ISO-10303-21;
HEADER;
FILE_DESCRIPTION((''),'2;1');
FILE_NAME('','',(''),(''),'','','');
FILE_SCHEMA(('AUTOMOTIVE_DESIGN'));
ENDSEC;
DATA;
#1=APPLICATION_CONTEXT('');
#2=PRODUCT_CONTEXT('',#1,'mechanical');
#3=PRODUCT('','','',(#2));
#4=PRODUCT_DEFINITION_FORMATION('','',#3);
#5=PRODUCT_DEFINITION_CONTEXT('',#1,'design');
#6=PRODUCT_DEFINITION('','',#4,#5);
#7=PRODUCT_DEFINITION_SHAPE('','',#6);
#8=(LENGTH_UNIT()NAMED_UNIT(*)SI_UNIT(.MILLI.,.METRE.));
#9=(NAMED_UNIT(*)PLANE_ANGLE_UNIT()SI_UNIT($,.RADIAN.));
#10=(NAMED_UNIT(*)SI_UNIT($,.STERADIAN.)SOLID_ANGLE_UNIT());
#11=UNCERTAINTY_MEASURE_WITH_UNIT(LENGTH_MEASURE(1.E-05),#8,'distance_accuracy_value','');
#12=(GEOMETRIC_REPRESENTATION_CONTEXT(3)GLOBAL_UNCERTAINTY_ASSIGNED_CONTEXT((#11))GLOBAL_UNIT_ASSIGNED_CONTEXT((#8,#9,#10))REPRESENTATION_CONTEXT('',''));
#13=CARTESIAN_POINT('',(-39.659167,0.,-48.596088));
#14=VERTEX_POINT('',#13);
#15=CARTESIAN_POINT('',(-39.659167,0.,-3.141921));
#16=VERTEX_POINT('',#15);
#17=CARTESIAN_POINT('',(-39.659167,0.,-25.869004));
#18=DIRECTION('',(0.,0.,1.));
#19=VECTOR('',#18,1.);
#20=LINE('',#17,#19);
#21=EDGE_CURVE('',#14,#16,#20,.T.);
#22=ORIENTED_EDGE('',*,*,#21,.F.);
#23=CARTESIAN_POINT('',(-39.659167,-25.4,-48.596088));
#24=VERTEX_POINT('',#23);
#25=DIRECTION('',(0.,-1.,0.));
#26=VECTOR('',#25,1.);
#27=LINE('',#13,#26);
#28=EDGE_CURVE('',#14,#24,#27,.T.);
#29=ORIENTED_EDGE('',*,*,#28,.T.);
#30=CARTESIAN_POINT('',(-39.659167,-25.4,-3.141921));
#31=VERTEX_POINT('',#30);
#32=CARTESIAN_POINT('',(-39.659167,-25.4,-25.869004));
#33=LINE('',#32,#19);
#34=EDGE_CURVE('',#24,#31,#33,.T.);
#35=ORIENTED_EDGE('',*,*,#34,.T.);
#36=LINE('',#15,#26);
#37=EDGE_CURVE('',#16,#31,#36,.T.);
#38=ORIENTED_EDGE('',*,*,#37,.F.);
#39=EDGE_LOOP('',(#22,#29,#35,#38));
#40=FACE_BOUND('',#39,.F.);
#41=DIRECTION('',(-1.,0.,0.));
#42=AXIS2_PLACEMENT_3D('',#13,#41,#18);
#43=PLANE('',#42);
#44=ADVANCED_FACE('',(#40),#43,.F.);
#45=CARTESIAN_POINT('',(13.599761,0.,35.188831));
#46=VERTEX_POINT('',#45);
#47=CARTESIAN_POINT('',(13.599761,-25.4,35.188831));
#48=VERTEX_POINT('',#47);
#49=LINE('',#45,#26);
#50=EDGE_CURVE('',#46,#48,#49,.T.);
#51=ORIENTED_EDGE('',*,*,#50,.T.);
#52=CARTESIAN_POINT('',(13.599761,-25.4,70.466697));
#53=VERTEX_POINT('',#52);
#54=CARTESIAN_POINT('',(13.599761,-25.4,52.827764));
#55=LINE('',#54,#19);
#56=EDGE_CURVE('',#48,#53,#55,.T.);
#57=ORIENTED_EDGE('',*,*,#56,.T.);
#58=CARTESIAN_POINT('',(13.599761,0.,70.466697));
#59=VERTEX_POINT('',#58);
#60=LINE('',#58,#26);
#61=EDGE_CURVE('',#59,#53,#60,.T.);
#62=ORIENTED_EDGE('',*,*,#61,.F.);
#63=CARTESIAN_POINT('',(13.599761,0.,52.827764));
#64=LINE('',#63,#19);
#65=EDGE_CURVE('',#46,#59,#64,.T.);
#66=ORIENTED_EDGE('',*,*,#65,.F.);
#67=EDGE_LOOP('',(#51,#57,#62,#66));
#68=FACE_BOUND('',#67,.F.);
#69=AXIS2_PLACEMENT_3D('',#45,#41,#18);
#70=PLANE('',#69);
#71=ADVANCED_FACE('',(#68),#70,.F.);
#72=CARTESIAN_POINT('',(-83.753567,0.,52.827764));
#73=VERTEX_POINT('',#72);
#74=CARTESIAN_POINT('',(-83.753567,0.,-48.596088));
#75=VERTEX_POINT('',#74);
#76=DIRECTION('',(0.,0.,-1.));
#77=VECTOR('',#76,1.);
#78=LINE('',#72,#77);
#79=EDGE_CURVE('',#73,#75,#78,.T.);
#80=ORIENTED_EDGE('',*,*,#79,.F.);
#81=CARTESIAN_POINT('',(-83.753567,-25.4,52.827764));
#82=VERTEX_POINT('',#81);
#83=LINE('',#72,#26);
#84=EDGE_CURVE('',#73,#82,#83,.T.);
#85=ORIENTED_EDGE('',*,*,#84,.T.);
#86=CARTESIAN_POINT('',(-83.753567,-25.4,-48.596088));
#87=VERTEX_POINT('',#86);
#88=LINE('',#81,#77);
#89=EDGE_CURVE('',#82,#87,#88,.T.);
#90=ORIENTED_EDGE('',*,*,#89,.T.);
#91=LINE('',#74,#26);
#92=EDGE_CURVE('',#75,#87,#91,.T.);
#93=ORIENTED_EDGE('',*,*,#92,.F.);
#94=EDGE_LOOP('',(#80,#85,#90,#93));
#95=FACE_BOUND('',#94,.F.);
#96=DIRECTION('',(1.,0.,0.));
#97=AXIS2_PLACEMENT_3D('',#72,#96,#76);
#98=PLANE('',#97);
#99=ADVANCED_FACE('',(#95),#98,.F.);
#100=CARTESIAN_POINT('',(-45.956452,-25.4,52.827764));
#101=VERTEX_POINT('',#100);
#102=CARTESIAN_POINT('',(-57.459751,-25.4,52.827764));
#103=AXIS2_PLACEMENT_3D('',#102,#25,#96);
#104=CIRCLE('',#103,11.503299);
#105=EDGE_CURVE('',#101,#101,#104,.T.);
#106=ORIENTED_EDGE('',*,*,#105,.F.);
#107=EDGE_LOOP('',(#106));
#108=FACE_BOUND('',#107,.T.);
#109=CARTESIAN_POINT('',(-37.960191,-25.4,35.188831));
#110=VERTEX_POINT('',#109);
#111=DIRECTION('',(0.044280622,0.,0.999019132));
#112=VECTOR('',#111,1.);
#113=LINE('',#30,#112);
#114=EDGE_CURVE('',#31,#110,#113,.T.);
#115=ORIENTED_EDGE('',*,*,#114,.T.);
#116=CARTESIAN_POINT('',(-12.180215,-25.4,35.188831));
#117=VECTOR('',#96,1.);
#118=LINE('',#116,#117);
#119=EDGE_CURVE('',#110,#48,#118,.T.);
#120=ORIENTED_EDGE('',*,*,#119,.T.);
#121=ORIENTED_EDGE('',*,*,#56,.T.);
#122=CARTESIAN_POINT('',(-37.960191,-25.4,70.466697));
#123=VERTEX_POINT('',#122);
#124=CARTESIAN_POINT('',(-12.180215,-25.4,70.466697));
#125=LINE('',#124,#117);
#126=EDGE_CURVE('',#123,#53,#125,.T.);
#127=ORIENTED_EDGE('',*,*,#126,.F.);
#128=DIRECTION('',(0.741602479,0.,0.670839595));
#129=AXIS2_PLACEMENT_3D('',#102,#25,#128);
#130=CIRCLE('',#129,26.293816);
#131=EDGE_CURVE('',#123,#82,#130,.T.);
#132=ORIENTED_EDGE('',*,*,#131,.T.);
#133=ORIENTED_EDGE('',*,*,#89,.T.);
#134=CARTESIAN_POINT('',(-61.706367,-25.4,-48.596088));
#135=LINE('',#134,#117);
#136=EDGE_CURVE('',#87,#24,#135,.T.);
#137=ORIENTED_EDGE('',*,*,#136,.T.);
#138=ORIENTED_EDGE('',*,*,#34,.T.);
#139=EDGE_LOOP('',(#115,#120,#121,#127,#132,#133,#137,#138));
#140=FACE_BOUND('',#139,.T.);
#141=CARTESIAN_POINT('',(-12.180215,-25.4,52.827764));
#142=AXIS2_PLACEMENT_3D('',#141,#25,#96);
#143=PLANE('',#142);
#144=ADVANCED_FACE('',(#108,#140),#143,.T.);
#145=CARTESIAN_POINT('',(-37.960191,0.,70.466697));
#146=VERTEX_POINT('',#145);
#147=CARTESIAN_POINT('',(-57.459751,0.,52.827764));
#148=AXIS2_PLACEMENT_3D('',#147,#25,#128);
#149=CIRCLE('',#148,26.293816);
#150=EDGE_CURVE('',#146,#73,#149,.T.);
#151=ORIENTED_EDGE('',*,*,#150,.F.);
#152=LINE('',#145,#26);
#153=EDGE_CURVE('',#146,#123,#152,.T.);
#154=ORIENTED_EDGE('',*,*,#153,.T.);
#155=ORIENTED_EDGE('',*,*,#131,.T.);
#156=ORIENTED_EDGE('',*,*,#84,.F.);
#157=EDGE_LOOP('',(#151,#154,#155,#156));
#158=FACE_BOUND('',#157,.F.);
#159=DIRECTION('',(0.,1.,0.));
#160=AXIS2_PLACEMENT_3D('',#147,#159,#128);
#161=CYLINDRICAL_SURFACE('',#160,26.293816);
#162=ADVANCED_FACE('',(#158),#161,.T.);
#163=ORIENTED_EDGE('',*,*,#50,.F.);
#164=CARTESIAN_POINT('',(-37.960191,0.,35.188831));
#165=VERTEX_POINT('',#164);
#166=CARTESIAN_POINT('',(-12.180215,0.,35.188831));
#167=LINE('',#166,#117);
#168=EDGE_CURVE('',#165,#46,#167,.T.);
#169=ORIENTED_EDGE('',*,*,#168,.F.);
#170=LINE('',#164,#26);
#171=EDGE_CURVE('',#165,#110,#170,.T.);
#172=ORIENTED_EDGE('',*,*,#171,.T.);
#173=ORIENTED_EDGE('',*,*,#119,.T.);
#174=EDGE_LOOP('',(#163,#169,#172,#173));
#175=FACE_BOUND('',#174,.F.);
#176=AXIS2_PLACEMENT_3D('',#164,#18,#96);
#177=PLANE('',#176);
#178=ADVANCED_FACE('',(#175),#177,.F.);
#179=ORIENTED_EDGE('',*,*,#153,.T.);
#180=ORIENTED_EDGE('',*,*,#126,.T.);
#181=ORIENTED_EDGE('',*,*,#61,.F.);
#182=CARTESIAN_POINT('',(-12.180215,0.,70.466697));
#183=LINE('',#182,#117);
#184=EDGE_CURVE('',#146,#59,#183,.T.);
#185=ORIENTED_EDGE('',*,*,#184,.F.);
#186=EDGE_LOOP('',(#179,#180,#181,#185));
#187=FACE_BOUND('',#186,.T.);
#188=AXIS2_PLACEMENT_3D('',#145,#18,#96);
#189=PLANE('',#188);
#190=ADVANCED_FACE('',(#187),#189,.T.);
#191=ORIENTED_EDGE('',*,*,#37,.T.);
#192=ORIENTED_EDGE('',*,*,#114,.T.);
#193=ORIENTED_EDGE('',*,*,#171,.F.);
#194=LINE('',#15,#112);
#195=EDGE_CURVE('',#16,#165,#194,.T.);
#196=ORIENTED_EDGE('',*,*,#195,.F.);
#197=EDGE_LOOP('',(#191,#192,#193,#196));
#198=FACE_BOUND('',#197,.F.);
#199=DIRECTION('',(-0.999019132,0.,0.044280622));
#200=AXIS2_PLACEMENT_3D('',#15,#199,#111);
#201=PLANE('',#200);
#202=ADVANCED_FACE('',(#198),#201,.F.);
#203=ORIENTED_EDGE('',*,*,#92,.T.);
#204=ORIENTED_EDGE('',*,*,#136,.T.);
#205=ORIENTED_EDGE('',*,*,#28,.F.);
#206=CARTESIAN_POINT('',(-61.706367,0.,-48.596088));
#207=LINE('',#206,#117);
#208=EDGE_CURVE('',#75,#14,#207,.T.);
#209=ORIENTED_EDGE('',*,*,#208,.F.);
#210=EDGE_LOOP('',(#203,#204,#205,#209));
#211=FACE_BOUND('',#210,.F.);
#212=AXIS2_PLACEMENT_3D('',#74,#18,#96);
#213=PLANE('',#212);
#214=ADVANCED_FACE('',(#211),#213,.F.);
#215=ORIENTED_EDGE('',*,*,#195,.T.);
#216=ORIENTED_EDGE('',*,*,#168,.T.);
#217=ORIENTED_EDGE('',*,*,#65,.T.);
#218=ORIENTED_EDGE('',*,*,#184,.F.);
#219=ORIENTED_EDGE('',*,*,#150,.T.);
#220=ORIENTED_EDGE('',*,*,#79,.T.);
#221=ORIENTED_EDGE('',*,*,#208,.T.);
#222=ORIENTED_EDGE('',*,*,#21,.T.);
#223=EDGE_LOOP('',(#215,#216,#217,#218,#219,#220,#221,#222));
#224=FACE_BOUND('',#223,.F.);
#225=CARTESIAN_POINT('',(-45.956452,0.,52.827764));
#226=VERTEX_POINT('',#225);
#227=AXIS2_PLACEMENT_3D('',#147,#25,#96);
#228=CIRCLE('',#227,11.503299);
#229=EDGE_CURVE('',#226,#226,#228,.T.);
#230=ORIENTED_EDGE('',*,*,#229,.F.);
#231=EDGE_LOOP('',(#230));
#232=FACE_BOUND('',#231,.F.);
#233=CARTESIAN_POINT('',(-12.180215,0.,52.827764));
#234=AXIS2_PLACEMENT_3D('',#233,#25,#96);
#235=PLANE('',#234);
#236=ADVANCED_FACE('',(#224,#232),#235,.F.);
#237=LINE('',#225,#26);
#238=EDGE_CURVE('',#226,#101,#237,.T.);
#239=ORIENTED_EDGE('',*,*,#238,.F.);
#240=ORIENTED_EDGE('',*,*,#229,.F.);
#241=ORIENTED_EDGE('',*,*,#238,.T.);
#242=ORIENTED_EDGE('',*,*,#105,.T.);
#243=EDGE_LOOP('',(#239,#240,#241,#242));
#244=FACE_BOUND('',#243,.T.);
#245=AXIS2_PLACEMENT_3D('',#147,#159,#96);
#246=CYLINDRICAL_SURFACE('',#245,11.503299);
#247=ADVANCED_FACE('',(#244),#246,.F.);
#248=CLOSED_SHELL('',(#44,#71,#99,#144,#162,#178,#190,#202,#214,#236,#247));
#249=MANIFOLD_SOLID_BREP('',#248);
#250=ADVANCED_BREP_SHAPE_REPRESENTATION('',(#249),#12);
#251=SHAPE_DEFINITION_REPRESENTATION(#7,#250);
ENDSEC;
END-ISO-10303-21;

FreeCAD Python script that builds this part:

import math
import FreeCAD as App
import Part
import Sketcher
Q = App.Units.Quantity

doc = App.newDocument("Part")
body = doc.addObject("PartDesign::Body", "Body")

# Sketch on XZ plane
sketch1 = body.newObject("Sketcher::SketchObject", "Sketch")
sketch1.AttachmentSupport = (doc.getObject("XZ_Plane"), [""])
sketch1.MapMode = "FlatFace"
sketch1.addGeometry([
    Part.ArcOfCircle(Part.Circle(App.Vector(-57, 53, 0), App.Vector(0, 0, 1), 26), math.radians(42), math.radians(180)),  # 0
    Part.LineSegment(App.Vector(-84, 53, 0), App.Vector(-84, -49, 0)),  # 1
    Part.LineSegment(App.Vector(-84, -49, 0), App.Vector(-40, -49, 0)),  # 2
    Part.LineSegment(App.Vector(-40, -49, 0), App.Vector(-40, -3, 0)),  # 3
    Part.LineSegment(App.Vector(-40, -3, 0), App.Vector(-38, 35, 0)),  # 4
    Part.LineSegment(App.Vector(-38, 35, 0), App.Vector(14, 35, 0)),  # 5
    Part.LineSegment(App.Vector(14, 35, 0), App.Vector(14, 70, 0)),  # 6
    Part.LineSegment(App.Vector(14, 70, 0), App.Vector(-38, 70, 0)),  # 7
    Part.Circle(App.Vector(-57, 53, 0), App.Vector(0, 0, 1), 12),  # 8
], False)
sketch1.addConstraint([
    Sketcher.Constraint("Tangent", 0, 2, 1, 1),
    Sketcher.Constraint("Coincident", 1, 2, 2, 1),
    Sketcher.Constraint("Coincident", 2, 2, 3, 1),
    Sketcher.Constraint("Coincident", 3, 2, 4, 1),
    Sketcher.Constraint("Coincident", 4, 2, 5, 1),
    Sketcher.Constraint("Coincident", 5, 2, 6, 1),
    Sketcher.Constraint("Coincident", 6, 2, 7, 1),
    Sketcher.Constraint("Coincident", 7, 2, 0, 1),
    Sketcher.Constraint("Vertical", 1),
    Sketcher.Constraint("Horizontal", 2),
    Sketcher.Constraint("Vertical", 3),
    Sketcher.Constraint("Horizontal", 5),
    Sketcher.Constraint("Vertical", 6),
    Sketcher.Constraint("Horizontal", 7),
    Sketcher.Constraint("Coincident", 8, 3, 0, 3),
    Sketcher.Constraint("Vertical", 4, 2, 7, 2),
    Sketcher.Constraint("Diameter", 8, 23.006598),
    Sketcher.Constraint("DistanceX", 2, 1, 2, 2, Q("1.736 in")),
    Sketcher.Constraint("Radius", 0, 26.293816),
    Sketcher.Constraint("DistanceY", 1, 2, 1, 1, 101.423852),
    Sketcher.Constraint("DistanceX", 5, 1, 5, 2, 51.559953),
    Sketcher.Constraint("DistanceY", 3, 1, 3, 2, 45.454166),
    Sketcher.Constraint("DistanceY", 6, 1, 6, 2, 35.277866),
    Sketcher.Constraint("DistanceX", 0, 3, -1, 1, 57.459751),
    Sketcher.Constraint("DistanceY", 3, 2, -1, 1, 3.141921),
    Sketcher.Constraint("DistanceX", 4, 2, -1, 1, 37.960191),
])
pad1 = body.newObject("PartDesign::Pad", "Pad")
pad1.Profile = sketch1
pad1.Length = Q("1 in")

doc.recompute()
